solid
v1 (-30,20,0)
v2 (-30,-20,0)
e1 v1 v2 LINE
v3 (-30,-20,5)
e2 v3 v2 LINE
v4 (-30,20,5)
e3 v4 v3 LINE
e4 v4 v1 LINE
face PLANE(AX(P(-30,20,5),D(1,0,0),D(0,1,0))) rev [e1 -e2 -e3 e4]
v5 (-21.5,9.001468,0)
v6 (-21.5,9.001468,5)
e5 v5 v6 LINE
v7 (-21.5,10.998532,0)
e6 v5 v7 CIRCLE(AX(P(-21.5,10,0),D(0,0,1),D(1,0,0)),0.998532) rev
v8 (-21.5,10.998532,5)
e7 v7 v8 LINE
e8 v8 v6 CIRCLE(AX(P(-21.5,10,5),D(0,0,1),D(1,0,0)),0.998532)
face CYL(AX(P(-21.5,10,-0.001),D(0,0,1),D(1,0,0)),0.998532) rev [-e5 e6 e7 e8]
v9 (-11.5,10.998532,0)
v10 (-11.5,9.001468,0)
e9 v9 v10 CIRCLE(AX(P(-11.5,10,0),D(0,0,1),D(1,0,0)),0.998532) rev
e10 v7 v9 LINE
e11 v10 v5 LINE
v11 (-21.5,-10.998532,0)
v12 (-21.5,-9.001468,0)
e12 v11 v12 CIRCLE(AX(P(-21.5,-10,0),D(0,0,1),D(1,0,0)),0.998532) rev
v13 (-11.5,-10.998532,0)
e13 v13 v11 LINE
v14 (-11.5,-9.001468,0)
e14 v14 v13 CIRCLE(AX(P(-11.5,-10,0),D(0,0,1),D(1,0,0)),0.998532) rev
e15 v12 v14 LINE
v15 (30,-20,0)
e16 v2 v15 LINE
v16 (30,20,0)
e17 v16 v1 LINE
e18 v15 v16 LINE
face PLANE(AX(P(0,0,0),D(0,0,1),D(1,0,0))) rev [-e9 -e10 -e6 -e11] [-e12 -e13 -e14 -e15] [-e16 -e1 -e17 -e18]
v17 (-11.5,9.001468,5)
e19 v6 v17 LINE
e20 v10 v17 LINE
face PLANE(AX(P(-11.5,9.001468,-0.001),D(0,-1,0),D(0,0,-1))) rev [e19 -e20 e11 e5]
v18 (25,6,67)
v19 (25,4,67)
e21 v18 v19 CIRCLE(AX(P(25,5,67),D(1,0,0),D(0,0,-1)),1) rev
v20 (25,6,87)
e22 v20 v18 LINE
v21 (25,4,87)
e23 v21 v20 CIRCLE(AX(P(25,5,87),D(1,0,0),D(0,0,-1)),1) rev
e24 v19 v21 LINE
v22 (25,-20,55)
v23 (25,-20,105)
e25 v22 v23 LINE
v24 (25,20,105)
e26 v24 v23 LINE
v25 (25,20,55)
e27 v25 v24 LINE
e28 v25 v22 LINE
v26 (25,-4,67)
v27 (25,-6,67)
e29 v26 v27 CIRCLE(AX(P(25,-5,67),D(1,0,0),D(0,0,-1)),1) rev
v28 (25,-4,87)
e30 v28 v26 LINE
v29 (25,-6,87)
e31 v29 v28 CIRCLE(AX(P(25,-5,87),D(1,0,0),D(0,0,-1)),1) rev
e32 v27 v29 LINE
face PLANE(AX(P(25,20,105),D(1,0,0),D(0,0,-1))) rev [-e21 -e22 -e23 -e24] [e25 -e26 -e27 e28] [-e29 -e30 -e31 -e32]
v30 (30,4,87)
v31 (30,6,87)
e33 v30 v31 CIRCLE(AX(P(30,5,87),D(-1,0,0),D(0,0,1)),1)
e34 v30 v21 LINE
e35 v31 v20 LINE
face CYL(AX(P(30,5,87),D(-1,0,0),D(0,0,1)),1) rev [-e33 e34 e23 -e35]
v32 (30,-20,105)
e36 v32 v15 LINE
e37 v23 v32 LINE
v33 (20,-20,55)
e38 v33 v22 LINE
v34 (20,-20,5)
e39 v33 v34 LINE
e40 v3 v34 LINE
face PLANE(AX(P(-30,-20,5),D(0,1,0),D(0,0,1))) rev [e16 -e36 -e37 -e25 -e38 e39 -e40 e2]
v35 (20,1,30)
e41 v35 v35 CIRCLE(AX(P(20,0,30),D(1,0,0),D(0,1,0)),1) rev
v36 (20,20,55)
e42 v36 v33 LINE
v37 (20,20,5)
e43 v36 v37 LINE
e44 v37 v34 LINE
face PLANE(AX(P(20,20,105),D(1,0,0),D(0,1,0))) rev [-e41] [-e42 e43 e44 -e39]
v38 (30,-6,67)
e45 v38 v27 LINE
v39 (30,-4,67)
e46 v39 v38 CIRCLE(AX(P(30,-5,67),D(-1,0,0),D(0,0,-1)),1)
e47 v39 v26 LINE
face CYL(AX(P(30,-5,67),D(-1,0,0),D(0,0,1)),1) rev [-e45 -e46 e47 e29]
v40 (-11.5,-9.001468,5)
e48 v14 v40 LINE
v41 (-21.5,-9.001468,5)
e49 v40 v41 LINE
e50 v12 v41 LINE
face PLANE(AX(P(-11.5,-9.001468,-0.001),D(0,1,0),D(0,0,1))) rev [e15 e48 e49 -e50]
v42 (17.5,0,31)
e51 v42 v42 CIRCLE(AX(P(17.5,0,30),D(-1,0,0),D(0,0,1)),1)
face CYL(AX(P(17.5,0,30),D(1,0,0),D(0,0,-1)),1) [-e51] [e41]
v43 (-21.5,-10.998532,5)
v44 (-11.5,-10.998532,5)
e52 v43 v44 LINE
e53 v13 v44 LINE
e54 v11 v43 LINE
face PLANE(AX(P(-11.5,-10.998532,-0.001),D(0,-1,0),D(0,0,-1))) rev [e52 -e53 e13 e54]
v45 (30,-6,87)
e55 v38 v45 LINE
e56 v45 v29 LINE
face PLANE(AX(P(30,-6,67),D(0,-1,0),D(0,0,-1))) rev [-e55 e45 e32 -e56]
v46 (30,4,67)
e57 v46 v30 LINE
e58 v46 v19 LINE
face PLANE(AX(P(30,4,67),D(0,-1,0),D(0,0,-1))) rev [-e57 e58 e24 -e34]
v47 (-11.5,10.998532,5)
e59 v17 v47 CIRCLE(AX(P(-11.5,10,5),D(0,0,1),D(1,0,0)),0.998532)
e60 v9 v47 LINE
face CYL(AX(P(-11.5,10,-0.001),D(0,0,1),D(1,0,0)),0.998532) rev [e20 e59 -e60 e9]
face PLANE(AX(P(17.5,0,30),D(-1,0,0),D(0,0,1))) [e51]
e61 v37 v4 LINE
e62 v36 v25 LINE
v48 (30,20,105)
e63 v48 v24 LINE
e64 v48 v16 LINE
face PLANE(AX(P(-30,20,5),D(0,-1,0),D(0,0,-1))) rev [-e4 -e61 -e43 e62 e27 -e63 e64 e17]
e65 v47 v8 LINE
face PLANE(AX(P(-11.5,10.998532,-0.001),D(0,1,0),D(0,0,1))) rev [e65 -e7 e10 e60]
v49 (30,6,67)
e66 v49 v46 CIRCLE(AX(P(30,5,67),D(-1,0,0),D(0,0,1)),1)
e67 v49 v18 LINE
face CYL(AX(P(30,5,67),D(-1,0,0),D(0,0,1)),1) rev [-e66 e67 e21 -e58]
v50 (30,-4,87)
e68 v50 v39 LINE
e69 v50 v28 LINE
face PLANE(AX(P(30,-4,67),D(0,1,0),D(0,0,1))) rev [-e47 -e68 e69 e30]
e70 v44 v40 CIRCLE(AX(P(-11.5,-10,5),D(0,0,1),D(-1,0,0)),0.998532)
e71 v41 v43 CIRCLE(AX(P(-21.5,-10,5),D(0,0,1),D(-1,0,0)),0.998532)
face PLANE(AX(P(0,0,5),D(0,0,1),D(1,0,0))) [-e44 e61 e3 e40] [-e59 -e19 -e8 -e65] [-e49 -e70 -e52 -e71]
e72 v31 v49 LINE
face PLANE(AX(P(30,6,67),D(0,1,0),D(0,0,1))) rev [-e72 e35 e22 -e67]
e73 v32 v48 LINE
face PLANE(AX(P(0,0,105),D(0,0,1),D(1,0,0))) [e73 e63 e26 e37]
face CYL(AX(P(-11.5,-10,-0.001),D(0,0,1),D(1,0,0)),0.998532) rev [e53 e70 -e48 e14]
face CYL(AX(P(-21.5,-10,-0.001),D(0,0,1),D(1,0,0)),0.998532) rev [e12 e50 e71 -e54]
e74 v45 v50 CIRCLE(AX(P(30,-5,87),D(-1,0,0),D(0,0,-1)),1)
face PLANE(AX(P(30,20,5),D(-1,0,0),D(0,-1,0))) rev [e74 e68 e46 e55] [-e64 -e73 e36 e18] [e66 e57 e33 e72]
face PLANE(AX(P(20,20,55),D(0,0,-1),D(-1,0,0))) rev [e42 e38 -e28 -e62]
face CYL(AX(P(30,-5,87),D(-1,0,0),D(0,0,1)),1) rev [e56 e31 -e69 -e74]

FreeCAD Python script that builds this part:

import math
import FreeCAD as App
import Part
import Sketcher

V = App.Vector


def add_polygon(sketch, points):
    """Adds a closed chain of lines whose ends are joined by coincident constraints."""
    first, n = sketch.GeometryCount, len(points)
    for a, b in zip(points, points[1:] + points[:1]):
        sketch.addGeometry(Part.LineSegment(App.Vector(*a, 0), App.Vector(*b, 0)), False)
    for i in range(n):
        sketch.addConstraint(Sketcher.Constraint("Coincident", first + i, 2, first + (i + 1) % n, 1))

doc = App.newDocument("Part")
body = doc.addObject("PartDesign::Body", "Body")

# Sketch on XY plane
sketch1 = body.newObject("Sketcher::SketchObject", "Sketch")
sketch1.AttachmentSupport = (doc.getObject("XY_Plane"), [""])
sketch1.MapMode = "FlatFace"
add_polygon(sketch1, [(-30, 20), (-30, -20), (30, -20), (30, 20)])  # lines 0-3
sketch1.addConstraint(Sketcher.Constraint("Vertical", 0))
sketch1.addConstraint(Sketcher.Constraint("Horizontal", 1))
sketch1.addConstraint(Sketcher.Constraint("Vertical", 2))
sketch1.addConstraint(Sketcher.Constraint("Horizontal", 3))
sketch1.addConstraint(Sketcher.Constraint("Symmetric", 0, 2, 2, 2, -1, 1))
sketch1.addConstraint(Sketcher.Constraint("DistanceX", 1, 1, 1, 2, 60.0))
sketch1.addConstraint(Sketcher.Constraint("DistanceY", 0, 2, 0, 1, 40.0))
pad1 = body.newObject("PartDesign::Pad", "Pad")
pad1.Profile = sketch1
pad1.Length = 5

# Sketch on XY plane
sketch2 = body.newObject("Sketcher::SketchObject", "Sketch001")
sketch2.AttachmentSupport = (doc.getObject("XY_Plane"), [""])
sketch2.MapMode = "FlatFace"
sketch2.AttachmentOffset = App.Placement(V(0, 0, 5), App.Rotation())
add_polygon(sketch2, [(20, 20), (20, -20), (30, -20), (30, 20)])  # lines 0-3
sketch2.addConstraint(Sketcher.Constraint("Vertical", 0))
sketch2.addConstraint(Sketcher.Constraint("Horizontal", 1))
sketch2.addConstraint(Sketcher.Constraint("Vertical", 2))
sketch2.addConstraint(Sketcher.Constraint("Horizontal", 3))
sketch2.addConstraint(Sketcher.Constraint("DistanceX", 1, 1, 1, 2, 10.0))
sketch2.addConstraint(Sketcher.Constraint("DistanceY", 0, 2, 0, 1, 40.0))
sketch2.addConstraint(Sketcher.Constraint("DistanceX", -1, 1, 0, 2, 20.0))
sketch2.addConstraint(Sketcher.Constraint("DistanceY", 0, 2, -1, 1, 20.0))
pad2 = body.newObject("PartDesign::Pad", "Pad001")
pad2.Profile = sketch2
pad2.Length = 100

# Sketch on YZ plane
sketch3 = body.newObject("Sketcher::SketchObject", "Sketch002")
sketch3.AttachmentSupport = (doc.getObject("YZ_Plane"), [""])
sketch3.MapMode = "FlatFace"
sketch3.AttachmentOffset = App.Placement(V(0, 0, 20), App.Rotation())
sketch3.addGeometry(Part.Circle(V(0, 30, 0), V(0, 0, 1), 1), False)
sketch3.addConstraint(Sketcher.Constraint("PointOnObject", 0, 3, -2))
sketch3.addConstraint(Sketcher.Constraint("Diameter", 0, 2.0))
sketch3.addConstraint(Sketcher.Constraint("DistanceY", -1, 1, 0, 3, 30.0))
pad3 = body.newObject("PartDesign::Pad", "Pad002")
pad3.Profile = sketch3
pad3.Length = 2.5
pad3.Reversed = True

# Sketch on YZ plane
sketch4 = body.newObject("Sketcher::SketchObject", "Sketch003")
sketch4.AttachmentSupport = (doc.getObject("YZ_Plane"), [""])
sketch4.MapMode = "FlatFace"
sketch4.AttachmentOffset = App.Placement(V(0, 0, 20), App.Rotation())
sketch4.addGeometry(Part.LineSegment(V(6, 87, 0), V(6, 67, 0)), False)
sketch4.addGeometry(Part.ArcOfCircle(Part.Circle(V(5, 67, 0), V(0, 0, 1), 1), math.radians(180), math.radians(360)), False)
sketch4.addGeometry(Part.LineSegment(V(4, 67, 0), V(4, 87, 0)), False)
sketch4.addGeometry(Part.ArcOfCircle(Part.Circle(V(5, 87, 0), V(0, 0, 1), 1), math.radians(0), math.radians(180)), False)
sketch4.addGeometry(Part.LineSegment(V(-6, 67, 0), V(-6, 87, 0)), False)
sketch4.addGeometry(Part.ArcOfCircle(Part.Circle(V(-5, 87, 0), V(0, 0, 1), 1), math.radians(0), math.radians(180)), False)
sketch4.addGeometry(Part.LineSegment(V(-4, 87, 0), V(-4, 67, 0)), False)
sketch4.addGeometry(Part.ArcOfCircle(Part.Circle(V(-5, 67, 0), V(0, 0, 1), 1), math.radians(180), math.radians(360)), False)
sketch4.addConstraint(Sketcher.Constraint("Tangent", 0, 2, 1, 2))
sketch4.addConstraint(Sketcher.Constraint("Tangent", 1, 1, 2, 1))
sketch4.addConstraint(Sketcher.Constraint("Tangent", 2, 2, 3, 2))
sketch4.addConstraint(Sketcher.Constraint("Tangent", 3, 1, 0, 1))
sketch4.addConstraint(Sketcher.Constraint("Tangent", 4, 2, 5, 2))
sketch4.addConstraint(Sketcher.Constraint("Tangent", 5, 1, 6, 1))
sketch4.addConstraint(Sketcher.Constraint("Tangent", 6, 2, 7, 2))
sketch4.addConstraint(Sketcher.Constraint("Tangent", 7, 1, 4, 1))
sketch4.addConstraint(Sketcher.Constraint("Vertical", 0))
sketch4.addConstraint(Sketcher.Constraint("Vertical", 2))
sketch4.addConstraint(Sketcher.Constraint("Vertical", 4))
sketch4.addConstraint(Sketcher.Constraint("Vertical", 6))
sketch4.addConstraint(Sketcher.Constraint("Equal", 3, 5))
sketch4.addConstraint(Sketcher.Constraint("Symmetric", 3, 3, 5, 3, -2))
sketch4.addConstraint(Sketcher.Constraint("Horizontal", 1, 3, 7, 3))
sketch4.addConstraint(Sketcher.Constraint("Radius", 1, 1.0))
sketch4.addConstraint(Sketcher.Constraint("DistanceY", 0, 2, 0, 1, 20.0))
sketch4.addConstraint(Sketcher.Constraint("DistanceX", -1, 1, 1, 3, 5.0))
sketch4.addConstraint(Sketcher.Constraint("DistanceY", -1, 1, 1, 3, 67.0))
pocket1 = body.newObject("PartDesign::Pocket", "Pocket")
pocket1.Profile = sketch4
pocket1.Type = "ThroughAll"
pocket1.Reversed = True

# Sketch on XZ plane
sketch5 = body.newObject("Sketcher::SketchObject", "Sketch004")
sketch5.AttachmentSupport = (doc.getObject("XZ_Plane"), [""])
sketch5.MapMode = "FlatFace"
sketch5.AttachmentOffset = App.Placement(V(0, 0, 20), App.Rotation())
add_polygon(sketch5, [(20, 105), (20, 55), (25, 55), (25, 105)])  # lines 0-3
sketch5.addConstraint(Sketcher.Constraint("Vertical", 0))
sketch5.addConstraint(Sketcher.Constraint("Horizontal", 1))
sketch5.addConstraint(Sketcher.Constraint("Vertical", 2))
sketch5.addConstraint(Sketcher.Constraint("Horizontal", 3))
sketch5.addConstraint(Sketcher.Constraint("DistanceX", 1, 1, 1, 2, 5.0))
sketch5.addConstraint(Sketcher.Constraint("DistanceY", 0, 2, 0, 1, 50.0))
sketch5.addConstraint(Sketcher.Constraint("DistanceX", -1, 1, 0, 2, 20.0))
sketch5.addConstraint(Sketcher.Constraint("DistanceY", -1, 1, 0, 2, 55.0))
pocket2 = body.newObject("PartDesign::Pocket", "Pocket001")
pocket2.Profile = sketch5
pocket2.Type = "ThroughAll"

# Sketch on XY plane
sketch6 = body.newObject("Sketcher::SketchObject", "Sketch005")
sketch6.AttachmentSupport = (doc.getObject("XY_Plane"), [""])
sketch6.MapMode = "FlatFace"
sketch6.AttachmentOffset = App.Placement(V(0, 0, 5), App.Rotation())
sketch6.addGeometry(Part.LineSegment(V(-21.5, 9.001468, 0), V(-11.5, 9.001468, 0)), False)
sketch6.addGeometry(Part.ArcOfCircle(Part.Circle(V(-11.5, 10, 0), V(0, 0, 1), 0.998532), math.radians(-90), math.radians(90)), False)
sketch6.addGeometry(Part.LineSegment(V(-11.5, 10.998532, 0), V(-21.5, 10.998532, 0)), False)
sketch6.addGeometry(Part.ArcOfCircle(Part.Circle(V(-21.5, 10, 0), V(0, 0, 1), 0.998532), math.radians(90), math.radians(270)), False)
sketch6.addConstraint(Sketcher.Constraint("Tangent", 0, 2, 1, 1))
sketch6.addConstraint(Sketcher.Constraint("Tangent", 1, 2, 2, 1))
sketch6.addConstraint(Sketcher.Constraint("Tangent", 2, 2, 3, 1))
sketch6.addConstraint(Sketcher.Constraint("Tangent", 3, 2, 0, 1))
sketch6.addConstraint(Sketcher.Constraint("Horizontal", 0))
sketch6.addConstraint(Sketcher.Constraint("Horizontal", 2))
sketch6.addConstraint(Sketcher.Constraint("DistanceX", 0, 1, 0, 2, 10.0))
sketch6.addConstraint(Sketcher.Constraint("DistanceY", -1, 1, 1, 3, 10.0))
sketch6.addConstraint(Sketcher.Constraint("DistanceX", 1, 3, -1, 1, 11.5))
sketch6.addConstraint(Sketcher.Constraint("Radius", 1, 0.998532))
pocket3 = body.newObject("PartDesign::Pocket", "Pocket002")
pocket3.Profile = sketch6
pocket3.Type = "UpToFirst"

# Sketch on XY plane
sketch7 = body.newObject("Sketcher::SketchObject", "Sketch006")
sketch7.AttachmentSupport = (doc.getObject("XY_Plane"), [""])
sketch7.MapMode = "FlatFace"
sketch7.AttachmentOffset = App.Placement(V(0, 0, 5), App.Rotation())
sketch7.addGeometry(Part.LineSegment(V(-11.5, -9.001468, 0), V(-21.5, -9.001468, 0)), False)
sketch7.addGeometry(Part.ArcOfCircle(Part.Circle(V(-21.5, -10, 0), V(0, 0, 1), 0.998532), math.radians(90), math.radians(270)), False)
sketch7.addGeometry(Part.LineSegment(V(-21.5, -10.998532, 0), V(-11.5, -10.998532, 0)), False)
sketch7.addGeometry(Part.ArcOfCircle(Part.Circle(V(-11.5, -10, 0), V(0, 0, 1), 0.998532), math.radians(-90), math.radians(90)), False)
sketch7.addConstraint(Sketcher.Constraint("Tangent", 0, 2, 1, 1))
sketch7.addConstraint(Sketcher.Constraint("Tangent", 1, 2, 2, 1))
sketch7.addConstraint(Sketcher.Constraint("Tangent", 2, 2, 3, 1))
sketch7.addConstraint(Sketcher.Constraint("Tangent", 3, 2, 0, 1))
sketch7.addConstraint(Sketcher.Constraint("Horizontal", 0))
sketch7.addConstraint(Sketcher.Constraint("Horizontal", 2))
sketch7.addConstraint(Sketcher.Constraint("DistanceX", 0, 2, 0, 1, 10.0))
sketch7.addConstraint(Sketcher.Constraint("DistanceY", 1, 3, -1, 1, 10.0))
sketch7.addConstraint(Sketcher.Constraint("DistanceX", 1, 3, -1, 1, 21.5))
sketch7.addConstraint(Sketcher.Constraint("Radius", 1, 0.998532))
pocket4 = body.newObject("PartDesign::Pocket", "Pocket003")
pocket4.Profile = sketch7
pocket4.Type = "UpToFirst"

doc.recompute()
